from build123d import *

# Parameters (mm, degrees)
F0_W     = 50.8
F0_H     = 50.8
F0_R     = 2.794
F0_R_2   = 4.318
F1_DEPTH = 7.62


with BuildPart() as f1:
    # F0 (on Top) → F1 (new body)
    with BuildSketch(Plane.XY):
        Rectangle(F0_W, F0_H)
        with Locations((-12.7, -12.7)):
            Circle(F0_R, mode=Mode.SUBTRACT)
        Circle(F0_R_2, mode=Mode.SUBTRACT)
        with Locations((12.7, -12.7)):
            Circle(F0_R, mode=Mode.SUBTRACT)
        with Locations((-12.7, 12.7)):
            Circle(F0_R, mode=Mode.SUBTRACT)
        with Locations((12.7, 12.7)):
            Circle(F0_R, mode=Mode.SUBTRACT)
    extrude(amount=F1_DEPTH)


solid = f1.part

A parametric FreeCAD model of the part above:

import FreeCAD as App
import Part
import Sketcher
Q = App.Units.Quantity

doc = App.newDocument("Part")
body = doc.addObject("PartDesign::Body", "Body")

# Sketch on XY plane
sketch1 = body.newObject("Sketcher::SketchObject", "Sketch")
sketch1.AttachmentSupport = (doc.getObject("XY_Plane"), [""])
sketch1.MapMode = "FlatFace"
sketch1.addGeometry(Part.LineSegment(App.Vector(-25.4, 25.4, 0), App.Vector(-25.4, -25.4, 0)), False)
sketch1.addGeometry(Part.LineSegment(App.Vector(-25.4, -25.4, 0), App.Vector(25.4, -25.4, 0)), False)
sketch1.addGeometry(Part.LineSegment(App.Vector(25.4, -25.4, 0), App.Vector(25.4, 25.4, 0)), False)
sketch1.addGeometry(Part.LineSegment(App.Vector(25.4, 25.4, 0), App.Vector(-25.4, 25.4, 0)), False)
sketch1.addGeometry(Part.Circle(App.Vector(-12.7, -12.7, 0), App.Vector(0, 0, 1), 2.8), False)
sketch1.addGeometry(Part.Circle(App.Vector(0, 0, 0), App.Vector(0, 0, 1), 4.3), False)
sketch1.addGeometry(Part.Circle(App.Vector(12.7, -12.7, 0), App.Vector(0, 0, 1), 2.8), False)
sketch1.addGeometry(Part.Circle(App.Vector(-12.7, 12.7, 0), App.Vector(0, 0, 1), 2.8), False)
sketch1.addGeometry(Part.Circle(App.Vector(12.7, 12.7, 0), App.Vector(0, 0, 1), 2.8), False)
sketch1.addConstraint(Sketcher.Constraint("Coincident", 0, 2, 1, 1))
sketch1.addConstraint(Sketcher.Constraint("Coincident", 1, 2, 2, 1))
sketch1.addConstraint(Sketcher.Constraint("Coincident", 2, 2, 3, 1))
sketch1.addConstraint(Sketcher.Constraint("Coincident", 3, 2, 0, 1))
sketch1.addConstraint(Sketcher.Constraint("Vertical", 0))
sketch1.addConstraint(Sketcher.Constraint("Horizontal", 1))
sketch1.addConstraint(Sketcher.Constraint("Vertical", 2))
sketch1.addConstraint(Sketcher.Constraint("Horizontal", 3))
sketch1.addConstraint(Sketcher.Constraint("Coincident", 5, 3, -1, 1))
sketch1.addConstraint(Sketcher.Constraint("Equal", 4, 6))
sketch1.addConstraint(Sketcher.Constraint("Equal", 6, 7))
sketch1.addConstraint(Sketcher.Constraint("Equal", 7, 8))
sketch1.addConstraint(Sketcher.Constraint("Symmetric", 6, 3, 7, 3, -1, 1))
sketch1.addConstraint(Sketcher.Constraint("Symmetric", 4, 3, 8, 3, -1, 1))
sketch1.addConstraint(Sketcher.Constraint("Symmetric", 0, 2, 2, 2, -1, 1))
sketch1.addConstraint(Sketcher.Constraint("Symmetric", 4, 3, 6, 3, -2))
sketch1.addConstraint(Sketcher.Constraint("Equal", 3, 0))
sketch1.addConstraint(Sketcher.Constraint("Diameter", 4, Q("0.22 in")))
sketch1.addConstraint(Sketcher.Constraint("Diameter", 5, Q("0.34 in")))
sketch1.addConstraint(Sketcher.Constraint("DistanceX", 1, 1, 1, 2, Q("2 in")))
sketch1.addConstraint(Sketcher.Constraint("DistanceX", 4, 3, 6, 3, Q("1 in")))
sketch1.addConstraint(Sketcher.Constraint("DistanceY", 4, 3, 7, 3, Q("1 in")))
pad1 = body.newObject("PartDesign::Pad", "Pad")
pad1.Profile = sketch1
pad1.Length = Q("0.3 in")

doc.recompute()
